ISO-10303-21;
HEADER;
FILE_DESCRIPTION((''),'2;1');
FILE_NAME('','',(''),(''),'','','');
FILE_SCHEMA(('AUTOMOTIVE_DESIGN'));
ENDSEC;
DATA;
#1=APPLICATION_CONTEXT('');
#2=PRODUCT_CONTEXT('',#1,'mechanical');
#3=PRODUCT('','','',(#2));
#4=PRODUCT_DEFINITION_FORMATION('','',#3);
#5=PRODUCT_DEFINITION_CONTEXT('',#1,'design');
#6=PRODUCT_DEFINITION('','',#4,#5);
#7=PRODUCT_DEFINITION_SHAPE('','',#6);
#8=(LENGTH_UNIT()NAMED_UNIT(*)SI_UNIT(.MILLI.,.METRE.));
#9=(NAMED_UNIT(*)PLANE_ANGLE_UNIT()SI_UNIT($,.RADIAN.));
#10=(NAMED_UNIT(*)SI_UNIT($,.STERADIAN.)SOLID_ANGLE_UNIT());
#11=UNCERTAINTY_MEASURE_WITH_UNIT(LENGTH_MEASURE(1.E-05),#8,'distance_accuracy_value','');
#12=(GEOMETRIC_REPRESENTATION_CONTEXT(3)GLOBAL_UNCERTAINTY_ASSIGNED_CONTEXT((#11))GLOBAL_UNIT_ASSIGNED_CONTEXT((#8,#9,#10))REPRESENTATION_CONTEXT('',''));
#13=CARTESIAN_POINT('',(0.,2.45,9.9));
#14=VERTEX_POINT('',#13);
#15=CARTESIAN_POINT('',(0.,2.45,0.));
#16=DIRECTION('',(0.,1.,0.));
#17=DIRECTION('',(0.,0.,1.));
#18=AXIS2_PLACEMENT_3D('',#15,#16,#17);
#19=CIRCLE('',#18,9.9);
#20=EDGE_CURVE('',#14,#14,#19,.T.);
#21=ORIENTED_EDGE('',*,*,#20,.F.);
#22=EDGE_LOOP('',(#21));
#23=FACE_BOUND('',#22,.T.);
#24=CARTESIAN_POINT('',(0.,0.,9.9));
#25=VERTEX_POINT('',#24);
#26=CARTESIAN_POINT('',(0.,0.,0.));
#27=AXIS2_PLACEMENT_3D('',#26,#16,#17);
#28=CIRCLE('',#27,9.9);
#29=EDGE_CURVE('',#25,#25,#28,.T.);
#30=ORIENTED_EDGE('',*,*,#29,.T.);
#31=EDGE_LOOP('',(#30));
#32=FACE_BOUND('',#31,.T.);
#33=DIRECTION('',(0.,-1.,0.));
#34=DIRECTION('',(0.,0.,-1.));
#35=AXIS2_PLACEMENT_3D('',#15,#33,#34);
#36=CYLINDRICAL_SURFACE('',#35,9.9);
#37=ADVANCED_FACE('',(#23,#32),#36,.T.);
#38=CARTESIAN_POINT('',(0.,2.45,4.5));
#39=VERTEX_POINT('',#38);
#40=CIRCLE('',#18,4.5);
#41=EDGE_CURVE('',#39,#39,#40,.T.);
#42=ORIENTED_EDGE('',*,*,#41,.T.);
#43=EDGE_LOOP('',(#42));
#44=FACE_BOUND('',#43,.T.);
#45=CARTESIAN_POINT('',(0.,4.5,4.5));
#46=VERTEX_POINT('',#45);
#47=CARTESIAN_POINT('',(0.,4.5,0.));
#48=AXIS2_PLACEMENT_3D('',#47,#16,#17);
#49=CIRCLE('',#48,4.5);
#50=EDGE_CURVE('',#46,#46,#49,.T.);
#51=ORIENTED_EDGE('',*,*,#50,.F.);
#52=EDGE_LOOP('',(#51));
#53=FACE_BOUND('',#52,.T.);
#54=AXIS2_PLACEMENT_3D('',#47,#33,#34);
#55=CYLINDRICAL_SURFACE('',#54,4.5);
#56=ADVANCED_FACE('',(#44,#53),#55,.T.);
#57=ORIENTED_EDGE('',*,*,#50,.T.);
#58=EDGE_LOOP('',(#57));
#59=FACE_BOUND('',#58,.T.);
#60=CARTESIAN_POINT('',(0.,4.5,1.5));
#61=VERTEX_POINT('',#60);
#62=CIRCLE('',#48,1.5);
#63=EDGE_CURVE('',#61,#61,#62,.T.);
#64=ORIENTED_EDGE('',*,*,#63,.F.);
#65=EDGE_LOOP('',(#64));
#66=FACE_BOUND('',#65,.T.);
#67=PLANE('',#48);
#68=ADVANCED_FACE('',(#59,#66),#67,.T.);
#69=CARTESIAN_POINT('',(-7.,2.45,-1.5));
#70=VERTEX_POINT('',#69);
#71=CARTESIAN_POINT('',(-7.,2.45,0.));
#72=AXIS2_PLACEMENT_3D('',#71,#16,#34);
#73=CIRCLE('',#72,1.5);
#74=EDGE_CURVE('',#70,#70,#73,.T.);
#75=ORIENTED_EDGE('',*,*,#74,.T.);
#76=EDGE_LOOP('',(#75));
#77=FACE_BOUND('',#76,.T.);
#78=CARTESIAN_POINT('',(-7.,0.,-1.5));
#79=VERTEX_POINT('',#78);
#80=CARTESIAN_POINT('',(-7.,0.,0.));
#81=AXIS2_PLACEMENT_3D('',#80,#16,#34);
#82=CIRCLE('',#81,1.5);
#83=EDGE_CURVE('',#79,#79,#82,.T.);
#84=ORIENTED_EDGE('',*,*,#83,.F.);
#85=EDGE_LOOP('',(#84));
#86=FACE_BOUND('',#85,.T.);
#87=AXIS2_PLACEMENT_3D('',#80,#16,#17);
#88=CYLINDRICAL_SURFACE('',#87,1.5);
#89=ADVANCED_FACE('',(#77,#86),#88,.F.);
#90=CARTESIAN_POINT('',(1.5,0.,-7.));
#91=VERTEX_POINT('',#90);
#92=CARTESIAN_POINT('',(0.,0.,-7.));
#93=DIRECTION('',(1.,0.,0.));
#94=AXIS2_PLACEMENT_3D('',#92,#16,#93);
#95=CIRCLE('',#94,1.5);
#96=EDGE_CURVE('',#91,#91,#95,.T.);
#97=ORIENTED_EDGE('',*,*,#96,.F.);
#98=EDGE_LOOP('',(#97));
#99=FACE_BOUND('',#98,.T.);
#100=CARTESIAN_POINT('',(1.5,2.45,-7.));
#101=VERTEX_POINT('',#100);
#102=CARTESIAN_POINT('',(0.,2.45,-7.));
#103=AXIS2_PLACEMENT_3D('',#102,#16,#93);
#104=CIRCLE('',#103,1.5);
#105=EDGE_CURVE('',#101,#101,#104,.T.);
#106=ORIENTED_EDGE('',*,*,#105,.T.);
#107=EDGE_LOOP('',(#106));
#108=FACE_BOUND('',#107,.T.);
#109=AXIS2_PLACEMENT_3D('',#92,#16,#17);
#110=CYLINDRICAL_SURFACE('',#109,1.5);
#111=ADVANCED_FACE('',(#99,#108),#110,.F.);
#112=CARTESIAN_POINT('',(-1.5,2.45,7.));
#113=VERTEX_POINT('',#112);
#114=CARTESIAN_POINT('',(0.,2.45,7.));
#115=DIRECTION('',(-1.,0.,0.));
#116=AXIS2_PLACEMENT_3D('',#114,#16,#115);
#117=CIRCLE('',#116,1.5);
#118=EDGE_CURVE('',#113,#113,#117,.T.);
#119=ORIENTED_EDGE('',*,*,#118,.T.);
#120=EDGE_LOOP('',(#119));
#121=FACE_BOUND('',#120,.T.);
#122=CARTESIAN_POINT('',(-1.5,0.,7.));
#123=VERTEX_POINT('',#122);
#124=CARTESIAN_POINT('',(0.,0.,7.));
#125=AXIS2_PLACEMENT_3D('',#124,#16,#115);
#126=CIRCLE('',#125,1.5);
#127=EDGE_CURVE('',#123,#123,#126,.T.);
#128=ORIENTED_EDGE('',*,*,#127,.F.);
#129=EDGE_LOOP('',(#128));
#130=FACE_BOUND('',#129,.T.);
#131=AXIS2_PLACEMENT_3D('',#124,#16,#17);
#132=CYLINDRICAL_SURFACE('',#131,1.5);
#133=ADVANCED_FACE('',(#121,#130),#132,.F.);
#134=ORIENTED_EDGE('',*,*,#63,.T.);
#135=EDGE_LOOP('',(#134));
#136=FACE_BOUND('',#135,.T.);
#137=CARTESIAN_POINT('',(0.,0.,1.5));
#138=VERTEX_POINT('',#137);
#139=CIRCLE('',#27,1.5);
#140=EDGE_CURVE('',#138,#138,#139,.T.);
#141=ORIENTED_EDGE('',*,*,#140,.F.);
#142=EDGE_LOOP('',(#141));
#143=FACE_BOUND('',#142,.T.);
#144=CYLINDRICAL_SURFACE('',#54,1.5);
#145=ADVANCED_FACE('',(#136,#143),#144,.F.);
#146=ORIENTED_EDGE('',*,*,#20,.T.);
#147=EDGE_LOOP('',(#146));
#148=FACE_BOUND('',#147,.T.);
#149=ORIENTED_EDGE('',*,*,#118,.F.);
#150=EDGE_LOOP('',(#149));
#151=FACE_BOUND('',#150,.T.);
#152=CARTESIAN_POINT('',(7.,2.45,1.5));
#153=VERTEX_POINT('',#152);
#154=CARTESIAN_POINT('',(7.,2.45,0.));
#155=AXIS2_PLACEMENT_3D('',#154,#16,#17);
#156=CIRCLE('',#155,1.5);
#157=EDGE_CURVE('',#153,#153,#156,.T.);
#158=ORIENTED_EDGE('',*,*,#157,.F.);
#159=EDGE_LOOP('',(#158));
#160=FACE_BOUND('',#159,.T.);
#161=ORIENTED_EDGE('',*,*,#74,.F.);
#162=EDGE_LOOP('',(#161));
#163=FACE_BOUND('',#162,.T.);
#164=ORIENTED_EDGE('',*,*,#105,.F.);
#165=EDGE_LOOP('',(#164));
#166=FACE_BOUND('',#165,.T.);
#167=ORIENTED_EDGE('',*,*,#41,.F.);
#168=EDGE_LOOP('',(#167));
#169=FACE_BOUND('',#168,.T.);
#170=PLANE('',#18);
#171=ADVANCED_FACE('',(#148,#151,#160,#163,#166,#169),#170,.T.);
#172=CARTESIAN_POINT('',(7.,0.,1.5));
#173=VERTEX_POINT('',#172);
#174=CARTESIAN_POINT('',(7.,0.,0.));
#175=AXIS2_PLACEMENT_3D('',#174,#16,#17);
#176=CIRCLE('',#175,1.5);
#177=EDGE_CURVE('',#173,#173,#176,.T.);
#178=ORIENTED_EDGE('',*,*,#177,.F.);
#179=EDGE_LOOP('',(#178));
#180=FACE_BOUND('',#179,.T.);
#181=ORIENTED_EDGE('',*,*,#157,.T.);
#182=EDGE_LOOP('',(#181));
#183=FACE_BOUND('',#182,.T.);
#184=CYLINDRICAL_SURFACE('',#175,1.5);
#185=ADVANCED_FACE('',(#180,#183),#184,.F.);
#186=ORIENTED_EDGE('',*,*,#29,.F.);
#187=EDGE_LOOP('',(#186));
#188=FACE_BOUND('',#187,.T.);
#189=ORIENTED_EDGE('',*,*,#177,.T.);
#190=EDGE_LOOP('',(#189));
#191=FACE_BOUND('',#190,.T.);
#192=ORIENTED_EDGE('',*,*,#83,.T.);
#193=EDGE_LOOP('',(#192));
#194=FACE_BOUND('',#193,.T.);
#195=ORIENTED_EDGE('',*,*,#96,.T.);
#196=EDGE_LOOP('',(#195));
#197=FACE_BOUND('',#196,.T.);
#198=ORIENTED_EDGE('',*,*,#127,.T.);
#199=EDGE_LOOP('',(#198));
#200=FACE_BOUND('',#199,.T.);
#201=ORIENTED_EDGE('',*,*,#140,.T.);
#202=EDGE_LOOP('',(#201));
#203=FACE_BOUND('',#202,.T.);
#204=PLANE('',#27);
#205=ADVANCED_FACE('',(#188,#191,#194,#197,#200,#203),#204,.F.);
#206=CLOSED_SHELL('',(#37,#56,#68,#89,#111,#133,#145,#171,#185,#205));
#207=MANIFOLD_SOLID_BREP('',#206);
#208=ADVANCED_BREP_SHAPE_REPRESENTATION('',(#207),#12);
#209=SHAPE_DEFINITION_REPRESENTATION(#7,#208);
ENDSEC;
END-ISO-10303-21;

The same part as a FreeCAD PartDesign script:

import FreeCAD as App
import Part
import Sketcher
Q = App.Units.Quantity

doc = App.newDocument("Part")
body = doc.addObject("PartDesign::Body", "Body")

# Sketch on XZ plane
sketch1 = body.newObject("Sketcher::SketchObject", "Sketch")
sketch1.AttachmentSupport = (doc.getObject("XZ_Plane"), [""])
sketch1.MapMode = "FlatFace"
sketch1.addGeometry(Part.Circle(App.Vector(0, 0, 0), App.Vector(0, 0, 1), 10), False)
sketch1.addConstraint([
    Sketcher.Constraint("Coincident", 0, 3, -1, 1),
    Sketcher.Constraint("Diameter", 0, Q("19.8 mm")),
])
pad1 = body.newObject("PartDesign::Pad", "Pad")
pad1.Profile = sketch1
pad1.Length = 2.45
pad1.Reversed = True

# Sketch on XZ plane
sketch2 = body.newObject("Sketcher::SketchObject", "Sketch001")
sketch2.AttachmentSupport = (doc.getObject("XZ_Plane"), [""])
sketch2.MapMode = "FlatFace"
sketch2.AttachmentOffset = App.Placement(App.Vector(0, 0, -2.45), App.Rotation())
sketch2.addGeometry([
    Part.Circle(App.Vector(0, 0, 0), App.Vector(0, 0, 1), 4.5),
    Part.Circle(App.Vector(0, 0, 0), App.Vector(0, 0, 1), 1.5),
], False)
sketch2.addConstraint([
    Sketcher.Constraint("Coincident", 0, 3, -1, 1),
    Sketcher.Constraint("Coincident", 1, 3, -1, 1),
    Sketcher.Constraint("Diameter", 0, Q("9 mm")),
    Sketcher.Constraint("Diameter", 1, Q("3 mm")),
])
pad2 = body.newObject("PartDesign::Pad", "Pad001")
pad2.Profile = sketch2
pad2.Length = 2.05
pad2.Reversed = True

# Sketch on XZ plane
sketch3 = body.newObject("Sketcher::SketchObject", "Sketch002")
sketch3.AttachmentSupport = (doc.getObject("XZ_Plane"), [""])
sketch3.MapMode = "FlatFace"
sketch3.AttachmentOffset = App.Placement(App.Vector(0, 0, -2.45), App.Rotation())
sketch3.addGeometry(Part.Circle(App.Vector(0, 0, 0), App.Vector(0, 0, 1), 1.5), False)
sketch3.addConstraint([
    Sketcher.Constraint("Coincident", 0, 3, -1, 1),
    Sketcher.Constraint("Diameter", 0, Q("3 mm")),
])
pocket1 = body.newObject("PartDesign::Pocket", "Pocket")
pocket1.Profile = sketch3
pocket1.Type = "ThroughAll"
pocket1.Reversed = True

# Sketch on XZ plane
sketch4 = body.newObject("Sketcher::SketchObject", "Sketch003")
sketch4.AttachmentSupport = (doc.getObject("XZ_Plane"), [""])
sketch4.MapMode = "FlatFace"
sketch4.AttachmentOffset = App.Placement(App.Vector(0, 0, -2.45), App.Rotation())
sketch4.addGeometry(Part.Circle(App.Vector(7, 0, 0), App.Vector(0, 0, 1), 1.5), False)
sketch4.addConstraint([
    Sketcher.Constraint("PointOnObject", 0, 3, -1),
    Sketcher.Constraint("Diameter", 0, Q("3 mm")),
    Sketcher.Constraint("DistanceX", -1, 1, 0, 3, Q("7 mm")),
])
pocket2 = body.newObject("PartDesign::Pocket", "Pocket001")
pocket2.Profile = sketch4
pocket2.Type = "ThroughAll"
pocket2.Reversed = True
doc.recompute()

polarpattern = body.newObject("PartDesign::PolarPattern", "PolarPattern")
polarpattern.Originals = [pocket2]
polarpattern.Axis = (doc.getObject("Y_Axis"), [""])
polarpattern.Angle = 360
polarpattern.Occurrences = 4
body.Tip = polarpattern

doc.recompute()
